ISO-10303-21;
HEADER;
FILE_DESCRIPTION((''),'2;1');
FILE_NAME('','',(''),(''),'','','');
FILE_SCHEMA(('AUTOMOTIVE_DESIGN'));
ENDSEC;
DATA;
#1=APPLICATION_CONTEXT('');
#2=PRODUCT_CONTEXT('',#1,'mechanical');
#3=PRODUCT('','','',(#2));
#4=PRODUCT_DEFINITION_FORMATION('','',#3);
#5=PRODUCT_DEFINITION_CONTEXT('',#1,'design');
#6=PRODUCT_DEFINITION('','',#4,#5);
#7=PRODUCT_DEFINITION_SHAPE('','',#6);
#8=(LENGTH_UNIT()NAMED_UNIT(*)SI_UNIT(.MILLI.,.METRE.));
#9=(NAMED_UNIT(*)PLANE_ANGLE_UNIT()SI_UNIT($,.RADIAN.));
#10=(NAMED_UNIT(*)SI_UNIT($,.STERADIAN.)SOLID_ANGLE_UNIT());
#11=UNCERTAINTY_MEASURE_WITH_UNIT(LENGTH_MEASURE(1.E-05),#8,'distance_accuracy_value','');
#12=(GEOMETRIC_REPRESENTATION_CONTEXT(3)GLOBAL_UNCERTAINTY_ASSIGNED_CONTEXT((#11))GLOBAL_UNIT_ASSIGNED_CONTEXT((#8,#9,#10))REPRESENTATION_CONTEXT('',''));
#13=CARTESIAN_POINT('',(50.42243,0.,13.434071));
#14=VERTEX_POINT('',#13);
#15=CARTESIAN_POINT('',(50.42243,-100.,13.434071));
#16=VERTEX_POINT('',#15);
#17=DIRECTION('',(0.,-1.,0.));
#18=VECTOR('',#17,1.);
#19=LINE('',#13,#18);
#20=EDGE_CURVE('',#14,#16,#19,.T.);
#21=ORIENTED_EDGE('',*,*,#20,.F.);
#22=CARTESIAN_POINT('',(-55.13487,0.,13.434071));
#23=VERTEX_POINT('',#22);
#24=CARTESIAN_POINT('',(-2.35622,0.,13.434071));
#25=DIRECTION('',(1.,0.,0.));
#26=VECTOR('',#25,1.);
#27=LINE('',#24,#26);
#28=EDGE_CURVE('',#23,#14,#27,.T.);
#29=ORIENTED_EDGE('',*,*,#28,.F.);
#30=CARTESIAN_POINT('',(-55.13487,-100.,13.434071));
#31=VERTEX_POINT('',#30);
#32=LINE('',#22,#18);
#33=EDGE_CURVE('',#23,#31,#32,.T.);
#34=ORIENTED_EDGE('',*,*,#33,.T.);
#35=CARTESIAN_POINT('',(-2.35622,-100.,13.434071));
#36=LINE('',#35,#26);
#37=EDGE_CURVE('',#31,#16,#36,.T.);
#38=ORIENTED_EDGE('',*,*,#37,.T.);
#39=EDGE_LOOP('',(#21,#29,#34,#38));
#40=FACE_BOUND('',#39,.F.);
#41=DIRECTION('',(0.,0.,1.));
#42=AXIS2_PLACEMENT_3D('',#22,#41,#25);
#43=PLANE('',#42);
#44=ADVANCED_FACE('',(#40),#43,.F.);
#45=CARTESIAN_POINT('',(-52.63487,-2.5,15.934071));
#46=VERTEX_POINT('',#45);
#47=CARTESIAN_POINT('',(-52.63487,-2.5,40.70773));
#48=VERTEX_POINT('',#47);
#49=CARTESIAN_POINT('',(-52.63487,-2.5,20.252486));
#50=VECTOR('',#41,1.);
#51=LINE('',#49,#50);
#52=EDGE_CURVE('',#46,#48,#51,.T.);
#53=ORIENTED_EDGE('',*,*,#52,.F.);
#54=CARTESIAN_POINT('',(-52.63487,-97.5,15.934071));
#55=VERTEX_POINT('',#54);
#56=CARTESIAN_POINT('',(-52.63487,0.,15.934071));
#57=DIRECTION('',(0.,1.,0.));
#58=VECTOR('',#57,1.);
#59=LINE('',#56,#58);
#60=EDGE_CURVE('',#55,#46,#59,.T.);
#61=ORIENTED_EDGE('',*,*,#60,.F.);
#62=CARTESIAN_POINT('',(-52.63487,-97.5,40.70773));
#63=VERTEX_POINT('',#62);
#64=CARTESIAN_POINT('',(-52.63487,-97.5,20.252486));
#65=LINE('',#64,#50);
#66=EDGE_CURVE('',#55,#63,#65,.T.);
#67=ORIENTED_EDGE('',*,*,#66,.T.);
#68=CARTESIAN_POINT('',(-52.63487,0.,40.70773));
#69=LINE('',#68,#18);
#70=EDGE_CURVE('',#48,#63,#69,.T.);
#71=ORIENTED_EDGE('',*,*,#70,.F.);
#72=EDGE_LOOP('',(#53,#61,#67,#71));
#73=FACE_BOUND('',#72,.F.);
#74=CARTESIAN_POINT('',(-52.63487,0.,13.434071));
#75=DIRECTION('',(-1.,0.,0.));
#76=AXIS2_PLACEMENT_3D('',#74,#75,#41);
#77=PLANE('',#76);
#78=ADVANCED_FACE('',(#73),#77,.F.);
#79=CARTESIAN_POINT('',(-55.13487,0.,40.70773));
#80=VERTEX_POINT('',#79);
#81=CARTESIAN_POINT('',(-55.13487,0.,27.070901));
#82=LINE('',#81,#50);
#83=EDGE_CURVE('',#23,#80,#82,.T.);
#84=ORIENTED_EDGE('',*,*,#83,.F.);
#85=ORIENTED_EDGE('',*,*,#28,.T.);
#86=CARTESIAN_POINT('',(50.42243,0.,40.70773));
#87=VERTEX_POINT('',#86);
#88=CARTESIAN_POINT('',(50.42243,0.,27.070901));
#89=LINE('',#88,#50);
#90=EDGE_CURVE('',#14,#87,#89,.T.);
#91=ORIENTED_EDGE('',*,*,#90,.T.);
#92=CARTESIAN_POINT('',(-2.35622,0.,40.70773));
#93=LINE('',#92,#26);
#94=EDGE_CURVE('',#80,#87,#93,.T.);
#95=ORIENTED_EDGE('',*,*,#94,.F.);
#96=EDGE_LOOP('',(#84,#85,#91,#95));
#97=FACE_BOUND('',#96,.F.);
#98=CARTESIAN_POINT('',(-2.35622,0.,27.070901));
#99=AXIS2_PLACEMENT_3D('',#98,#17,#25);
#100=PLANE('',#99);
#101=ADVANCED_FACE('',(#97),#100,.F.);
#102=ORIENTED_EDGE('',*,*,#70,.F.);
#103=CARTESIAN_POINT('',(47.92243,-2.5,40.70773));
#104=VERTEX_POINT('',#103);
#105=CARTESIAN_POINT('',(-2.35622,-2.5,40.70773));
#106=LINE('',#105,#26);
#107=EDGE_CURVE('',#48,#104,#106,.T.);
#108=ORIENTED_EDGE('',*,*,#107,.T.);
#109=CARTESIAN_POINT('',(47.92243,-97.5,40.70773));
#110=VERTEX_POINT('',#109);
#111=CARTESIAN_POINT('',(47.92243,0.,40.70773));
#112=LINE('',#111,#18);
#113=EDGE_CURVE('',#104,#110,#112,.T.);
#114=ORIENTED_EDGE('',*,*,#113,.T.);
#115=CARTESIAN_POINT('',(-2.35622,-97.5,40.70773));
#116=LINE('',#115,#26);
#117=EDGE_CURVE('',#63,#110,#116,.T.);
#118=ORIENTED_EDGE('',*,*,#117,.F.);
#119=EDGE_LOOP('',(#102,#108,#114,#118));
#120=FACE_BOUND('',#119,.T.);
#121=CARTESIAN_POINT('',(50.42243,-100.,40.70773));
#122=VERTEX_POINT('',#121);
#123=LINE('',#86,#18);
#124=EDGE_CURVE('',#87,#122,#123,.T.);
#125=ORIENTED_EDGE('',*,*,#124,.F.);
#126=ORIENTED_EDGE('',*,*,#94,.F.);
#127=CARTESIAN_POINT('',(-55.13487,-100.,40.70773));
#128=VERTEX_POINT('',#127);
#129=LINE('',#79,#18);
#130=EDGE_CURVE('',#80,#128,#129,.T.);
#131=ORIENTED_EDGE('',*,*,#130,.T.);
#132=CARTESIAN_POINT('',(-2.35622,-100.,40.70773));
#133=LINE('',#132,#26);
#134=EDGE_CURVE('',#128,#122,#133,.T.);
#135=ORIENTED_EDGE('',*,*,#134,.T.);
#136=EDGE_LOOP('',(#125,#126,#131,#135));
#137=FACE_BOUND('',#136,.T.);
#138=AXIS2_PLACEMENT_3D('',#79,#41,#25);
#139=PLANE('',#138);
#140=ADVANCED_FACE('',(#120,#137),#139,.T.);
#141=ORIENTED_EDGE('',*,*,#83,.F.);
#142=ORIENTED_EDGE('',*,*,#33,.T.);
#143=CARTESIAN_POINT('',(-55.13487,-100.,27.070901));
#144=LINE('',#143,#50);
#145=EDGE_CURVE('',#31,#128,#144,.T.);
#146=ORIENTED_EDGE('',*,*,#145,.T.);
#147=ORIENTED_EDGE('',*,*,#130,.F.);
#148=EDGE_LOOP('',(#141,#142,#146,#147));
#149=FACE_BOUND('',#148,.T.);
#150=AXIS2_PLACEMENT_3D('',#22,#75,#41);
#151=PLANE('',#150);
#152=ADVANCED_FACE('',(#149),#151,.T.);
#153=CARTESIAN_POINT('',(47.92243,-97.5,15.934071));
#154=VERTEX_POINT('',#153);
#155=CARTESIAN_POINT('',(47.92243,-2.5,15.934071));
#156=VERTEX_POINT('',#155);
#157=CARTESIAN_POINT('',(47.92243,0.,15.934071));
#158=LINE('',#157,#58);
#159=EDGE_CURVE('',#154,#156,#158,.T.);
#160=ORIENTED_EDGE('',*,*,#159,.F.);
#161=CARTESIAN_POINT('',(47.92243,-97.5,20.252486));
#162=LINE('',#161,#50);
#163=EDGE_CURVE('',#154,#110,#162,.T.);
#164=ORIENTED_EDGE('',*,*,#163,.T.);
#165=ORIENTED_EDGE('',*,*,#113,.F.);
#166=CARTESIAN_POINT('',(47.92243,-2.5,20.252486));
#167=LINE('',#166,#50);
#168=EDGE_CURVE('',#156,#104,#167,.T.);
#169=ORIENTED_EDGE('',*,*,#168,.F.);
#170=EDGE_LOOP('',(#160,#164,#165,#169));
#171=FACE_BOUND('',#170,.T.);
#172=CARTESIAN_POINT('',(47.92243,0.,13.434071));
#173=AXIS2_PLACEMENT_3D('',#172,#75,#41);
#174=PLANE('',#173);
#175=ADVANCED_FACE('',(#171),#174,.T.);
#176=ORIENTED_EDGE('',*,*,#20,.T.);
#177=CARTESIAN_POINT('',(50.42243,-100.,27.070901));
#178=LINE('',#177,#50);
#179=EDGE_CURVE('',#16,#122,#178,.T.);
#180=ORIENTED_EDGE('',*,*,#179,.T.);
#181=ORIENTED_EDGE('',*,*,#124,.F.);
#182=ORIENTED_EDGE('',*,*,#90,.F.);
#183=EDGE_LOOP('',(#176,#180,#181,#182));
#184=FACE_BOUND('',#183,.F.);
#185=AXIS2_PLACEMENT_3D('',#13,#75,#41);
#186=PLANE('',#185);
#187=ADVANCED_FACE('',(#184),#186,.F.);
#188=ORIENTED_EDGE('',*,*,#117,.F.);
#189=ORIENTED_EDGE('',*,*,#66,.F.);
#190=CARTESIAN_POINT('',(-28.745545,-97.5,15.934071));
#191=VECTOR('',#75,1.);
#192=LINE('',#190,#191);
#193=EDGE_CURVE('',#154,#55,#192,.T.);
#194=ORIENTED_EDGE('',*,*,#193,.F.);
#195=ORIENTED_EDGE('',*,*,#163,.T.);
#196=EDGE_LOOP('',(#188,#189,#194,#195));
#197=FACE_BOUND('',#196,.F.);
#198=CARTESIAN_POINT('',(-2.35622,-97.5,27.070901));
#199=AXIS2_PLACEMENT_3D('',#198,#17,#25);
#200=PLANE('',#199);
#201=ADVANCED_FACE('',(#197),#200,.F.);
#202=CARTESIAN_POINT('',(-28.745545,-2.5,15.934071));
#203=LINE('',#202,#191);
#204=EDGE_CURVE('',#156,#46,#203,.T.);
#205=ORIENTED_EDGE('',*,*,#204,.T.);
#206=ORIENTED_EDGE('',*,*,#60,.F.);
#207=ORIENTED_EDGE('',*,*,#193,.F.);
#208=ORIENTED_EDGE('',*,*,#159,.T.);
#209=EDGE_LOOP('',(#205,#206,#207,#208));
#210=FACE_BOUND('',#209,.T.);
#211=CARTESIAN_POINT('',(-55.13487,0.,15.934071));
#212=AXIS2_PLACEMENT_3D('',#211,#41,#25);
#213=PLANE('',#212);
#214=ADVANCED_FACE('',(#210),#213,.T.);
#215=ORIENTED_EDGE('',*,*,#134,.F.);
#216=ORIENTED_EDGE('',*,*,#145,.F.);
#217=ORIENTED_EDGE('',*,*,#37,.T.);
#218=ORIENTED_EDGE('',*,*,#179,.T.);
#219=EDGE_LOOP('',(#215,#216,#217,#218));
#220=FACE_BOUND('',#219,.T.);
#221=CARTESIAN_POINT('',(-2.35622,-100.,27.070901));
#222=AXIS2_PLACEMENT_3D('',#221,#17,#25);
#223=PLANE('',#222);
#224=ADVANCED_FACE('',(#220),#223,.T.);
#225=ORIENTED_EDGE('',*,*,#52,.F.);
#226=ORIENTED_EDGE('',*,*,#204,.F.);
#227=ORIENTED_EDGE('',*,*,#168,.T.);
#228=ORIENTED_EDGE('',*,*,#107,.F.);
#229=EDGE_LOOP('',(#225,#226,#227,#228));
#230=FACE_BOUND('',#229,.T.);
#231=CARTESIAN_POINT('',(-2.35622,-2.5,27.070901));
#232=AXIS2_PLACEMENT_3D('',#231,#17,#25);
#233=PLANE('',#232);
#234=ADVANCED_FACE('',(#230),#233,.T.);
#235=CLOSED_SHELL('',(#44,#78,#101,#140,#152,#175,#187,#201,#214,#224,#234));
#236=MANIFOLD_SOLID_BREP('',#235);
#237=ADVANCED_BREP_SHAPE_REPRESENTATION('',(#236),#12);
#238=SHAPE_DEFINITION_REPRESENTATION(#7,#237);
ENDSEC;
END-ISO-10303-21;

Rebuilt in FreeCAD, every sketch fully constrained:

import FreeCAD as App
import Part
import Sketcher


def faces_at(feature, points):
    """Names of the faces that lie closest to the given points."""
    faces = feature.Shape.Faces
    near = lambda p: min(range(len(faces)), key=lambda i: faces[i].distToShape(Part.Vertex(*p))[0])
    return sorted({f"Face{near(p) + 1}" for p in points})

doc = App.newDocument("Part")
body = doc.addObject("PartDesign::Body", "Body")

# Sketch on XZ plane
sketch1 = body.newObject("Sketcher::SketchObject", "Sketch")
sketch1.AttachmentSupport = (doc.getObject("XZ_Plane"), [""])
sketch1.MapMode = "FlatFace"
sketch1.addGeometry([
    Part.LineSegment(App.Vector(-55.13487, 40.70773, 0), App.Vector(-55.13487, 13.434071, 0)),
    Part.LineSegment(App.Vector(-55.13487, 13.434071, 0), App.Vector(50.42243, 13.434071, 0)),
    Part.LineSegment(App.Vector(50.42243, 13.434071, 0), App.Vector(50.42243, 40.70773, 0)),
    Part.LineSegment(App.Vector(50.42243, 40.70773, 0), App.Vector(-55.13487, 40.70773, 0)),
], False)
sketch1.addConstraint([
    Sketcher.Constraint("Coincident", 0, 2, 1, 1),
    Sketcher.Constraint("Coincident", 1, 2, 2, 1),
    Sketcher.Constraint("Coincident", 2, 2, 3, 1),
    Sketcher.Constraint("Coincident", 3, 2, 0, 1),
    Sketcher.Constraint("Vertical", 0),
    Sketcher.Constraint("Horizontal", 1),
    Sketcher.Constraint("Vertical", 2),
    Sketcher.Constraint("Horizontal", 3),
    Sketcher.Constraint("DistanceX", 1, 1, 1, 2, 105.5573),
    Sketcher.Constraint("DistanceY", 0, 2, 0, 1, 27.273659),
    Sketcher.Constraint("DistanceX", 0, 2, -1, 1, 55.13487),
    Sketcher.Constraint("DistanceY", -1, 1, 0, 2, 13.434071),
])
pad1 = body.newObject("PartDesign::Pad", "Pad")
pad1.Profile = sketch1
pad1.Length = 100
doc.recompute()

thickness = body.newObject("PartDesign::Thickness", "Thickness")
thickness.Base = (pad1, faces_at(pad1, [(-2.356, -50, 40.708)]))
thickness.Value = 2.5
thickness.Reversed = True
thickness.Join = "Arc"

doc.recompute()
